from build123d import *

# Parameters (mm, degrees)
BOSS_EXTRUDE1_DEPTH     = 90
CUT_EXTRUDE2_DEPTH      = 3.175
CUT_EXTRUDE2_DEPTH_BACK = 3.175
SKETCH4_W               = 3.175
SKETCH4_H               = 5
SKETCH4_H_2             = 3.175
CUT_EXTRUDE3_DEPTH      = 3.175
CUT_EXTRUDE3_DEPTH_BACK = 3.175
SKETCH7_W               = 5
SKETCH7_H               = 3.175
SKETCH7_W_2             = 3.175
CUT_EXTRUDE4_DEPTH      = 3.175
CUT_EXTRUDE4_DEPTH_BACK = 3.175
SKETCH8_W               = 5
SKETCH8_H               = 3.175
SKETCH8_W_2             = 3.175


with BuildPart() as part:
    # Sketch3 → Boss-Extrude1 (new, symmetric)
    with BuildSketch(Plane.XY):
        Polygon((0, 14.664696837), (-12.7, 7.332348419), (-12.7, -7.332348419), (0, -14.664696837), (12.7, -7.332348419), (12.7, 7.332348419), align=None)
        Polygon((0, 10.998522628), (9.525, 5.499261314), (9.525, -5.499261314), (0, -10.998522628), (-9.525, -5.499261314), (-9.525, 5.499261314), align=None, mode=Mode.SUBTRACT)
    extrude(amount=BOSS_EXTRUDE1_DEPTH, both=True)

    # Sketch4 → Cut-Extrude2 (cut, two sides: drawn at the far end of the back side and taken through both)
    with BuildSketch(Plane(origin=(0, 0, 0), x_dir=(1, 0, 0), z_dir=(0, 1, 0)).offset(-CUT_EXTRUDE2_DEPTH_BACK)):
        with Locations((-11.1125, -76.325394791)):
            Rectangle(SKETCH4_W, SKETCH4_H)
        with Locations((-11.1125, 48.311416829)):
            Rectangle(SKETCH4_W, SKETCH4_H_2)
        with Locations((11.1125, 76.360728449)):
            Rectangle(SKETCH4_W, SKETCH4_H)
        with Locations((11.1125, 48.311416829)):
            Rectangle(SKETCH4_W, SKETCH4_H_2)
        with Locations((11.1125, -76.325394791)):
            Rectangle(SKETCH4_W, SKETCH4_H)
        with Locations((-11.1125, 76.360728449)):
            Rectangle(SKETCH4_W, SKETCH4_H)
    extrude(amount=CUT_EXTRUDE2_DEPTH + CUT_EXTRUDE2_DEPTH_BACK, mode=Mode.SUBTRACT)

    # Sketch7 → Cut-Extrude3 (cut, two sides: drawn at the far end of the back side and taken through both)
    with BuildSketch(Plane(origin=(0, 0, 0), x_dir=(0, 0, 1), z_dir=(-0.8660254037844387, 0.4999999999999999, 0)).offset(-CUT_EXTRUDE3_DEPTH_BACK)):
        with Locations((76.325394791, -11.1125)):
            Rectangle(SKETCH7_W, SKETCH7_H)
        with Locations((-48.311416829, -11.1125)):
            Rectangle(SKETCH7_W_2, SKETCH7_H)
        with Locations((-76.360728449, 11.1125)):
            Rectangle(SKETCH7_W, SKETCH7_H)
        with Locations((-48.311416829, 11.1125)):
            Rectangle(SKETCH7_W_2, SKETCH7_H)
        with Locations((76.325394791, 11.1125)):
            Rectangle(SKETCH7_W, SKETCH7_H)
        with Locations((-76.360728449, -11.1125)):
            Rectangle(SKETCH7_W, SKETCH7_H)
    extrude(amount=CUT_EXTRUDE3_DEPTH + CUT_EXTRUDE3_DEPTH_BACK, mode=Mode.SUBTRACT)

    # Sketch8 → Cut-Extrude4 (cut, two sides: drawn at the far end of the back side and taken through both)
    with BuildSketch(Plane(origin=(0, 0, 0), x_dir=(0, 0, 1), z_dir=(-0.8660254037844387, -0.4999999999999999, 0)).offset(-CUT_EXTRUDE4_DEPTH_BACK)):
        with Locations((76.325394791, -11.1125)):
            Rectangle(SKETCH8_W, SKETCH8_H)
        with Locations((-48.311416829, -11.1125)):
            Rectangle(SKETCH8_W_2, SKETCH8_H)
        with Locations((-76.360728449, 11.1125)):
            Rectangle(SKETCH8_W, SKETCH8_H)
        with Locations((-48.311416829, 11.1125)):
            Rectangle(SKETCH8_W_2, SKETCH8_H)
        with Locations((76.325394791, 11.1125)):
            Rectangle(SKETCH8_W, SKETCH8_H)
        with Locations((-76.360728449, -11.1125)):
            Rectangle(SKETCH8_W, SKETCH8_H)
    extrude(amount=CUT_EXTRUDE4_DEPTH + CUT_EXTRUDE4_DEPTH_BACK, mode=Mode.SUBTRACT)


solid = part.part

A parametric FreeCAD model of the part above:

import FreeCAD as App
import Part
import Sketcher
from FreeCAD import Vector
Q = App.Units.Quantity


def add_polygon(sketch, points):
    """Adds a closed chain of lines whose ends are joined by coincident constraints."""
    first, n = sketch.GeometryCount, len(points)
    for a, b in zip(points, points[1:] + points[:1]):
        sketch.addGeometry(Part.LineSegment(App.Vector(*a, 0), App.Vector(*b, 0)), False)
    for i in range(n):
        sketch.addConstraint(Sketcher.Constraint("Coincident", first + i, 2, first + (i + 1) % n, 1))

doc = App.newDocument("Part")
params = doc.addObject("Spreadsheet::Sheet", "Params")
for row, (alias, value) in enumerate([
    ("pad1_length", "180 mm"),
    ("sketch2_height", "5 mm"),
    ("pocket1_length", "3.175 mm"),
    ("pocket1_length2", "3.175 mm"),
    ("sketch3_width", "5 mm"),
    ("pocket2_length", "3.175 mm"),
    ("pocket2_length2", "3.175 mm"),
    ("sketch4_width", "5 mm"),
    ("pocket3_length", "3.175 mm"),
    ("pocket3_length2", "3.175 mm"),
], start=1):
    params.set(f"A{row}", alias)
    params.set(f"B{row}", "=" + value)
    params.setAlias(f"B{row}", alias)

body = doc.addObject("PartDesign::Body", "Body")

# Sketch on XY plane
sketch1 = body.newObject("Sketcher::SketchObject", "Sketch")
sketch1.AttachmentSupport = (doc.getObject("XY_Plane"), [""])
sketch1.MapMode = "FlatFace"
add_polygon(sketch1, [(0, 15), (-13, 7), (-13, -7), (0, -15), (13, -7), (13, 7)])  # lines 0-5
add_polygon(sketch1, [(-10, 5), (0, 11), (10, 5), (10, -5), (0, -11), (-10, -5)])  # lines 6-11
sketch1.addConstraint([
    Sketcher.Constraint("Vertical", 1),
    Sketcher.Constraint("Vertical", 4),
    Sketcher.Constraint("Vertical", 8),
    Sketcher.Constraint("Vertical", 11),
    Sketcher.Constraint("Symmetric", 0, 2, 3, 2, -1, 1),
    Sketcher.Constraint("Symmetric", 2, 2, 5, 2, -1, 1),
    Sketcher.Constraint("Symmetric", 6, 2, 9, 2, -1, 1),
    Sketcher.Constraint("Symmetric", 7, 2, 10, 2, -1, 1),
    Sketcher.Constraint("PointOnObject", 2, 2, -2),
    Sketcher.Constraint("PointOnObject", 6, 2, -2),
    Sketcher.Constraint("Parallel", 2, 5),
    Sketcher.Constraint("Parallel", 3, 6),
    Sketcher.Constraint("Parallel", 5, 7),
    Sketcher.Constraint("Parallel", 6, 9),
    Sketcher.Constraint("Horizontal", 1, 2, 3, 2),
    Sketcher.Constraint("Angle", 0, Q("-150 deg")),
    Sketcher.Constraint("DistanceX", 0, 2, -1, 1, 12.7),
    Sketcher.Constraint("DistanceX", -1, 1, 7, 2, 9.525),
    Sketcher.Constraint("DistanceY", 1, 2, 1, 1, 14.664697),
    Sketcher.Constraint("DistanceY", 8, 2, 8, 1, 10.998523),
])
pad1 = body.newObject("PartDesign::Pad", "Pad")
pad1.Profile = sketch1
pad1.setExpression("Length", "Params.pad1_length")
pad1.Midplane = True

# Sketch on XZ plane
sketch2 = body.newObject("Sketcher::SketchObject", "Sketch001")
sketch2.AttachmentSupport = (doc.getObject("XZ_Plane"), [""])
sketch2.MapMode = "FlatFace"
add_polygon(sketch2, [(-12.7, 73.8), (-12.7, 78.8), (-9.5, 78.8), (-9.5, 73.8)])  # lines 0-3
add_polygon(sketch2, [(-12.7, -49.9), (-12.7, -46.7), (-9.5, -46.7), (-9.5, -49.9)])  # lines 4-7
add_polygon(sketch2, [(9.5, -78.9), (9.5, -73.9), (12.7, -73.9), (12.7, -78.9)])  # lines 8-11
add_polygon(sketch2, [(9.5, -49.9), (9.5, -46.7), (12.7, -46.7), (12.7, -49.9)])  # lines 12-15
add_polygon(sketch2, [(9.5, 73.8), (9.5, 78.8), (12.7, 78.8), (12.7, 73.8)])  # lines 16-19
add_polygon(sketch2, [(-12.7, -78.9), (-12.7, -73.9), (-9.5, -73.9), (-9.5, -78.9)])  # lines 20-23
sketch2.addConstraint([
    Sketcher.Constraint("Vertical", 0),
    Sketcher.Constraint("Horizontal", 1),
    Sketcher.Constraint("Vertical", 2),
    Sketcher.Constraint("Horizontal", 3),
    Sketcher.Constraint("Vertical", 4),
    Sketcher.Constraint("Horizontal", 5),
    Sketcher.Constraint("Vertical", 6),
    Sketcher.Constraint("Horizontal", 7),
    Sketcher.Constraint("Vertical", 8),
    Sketcher.Constraint("Horizontal", 9),
    Sketcher.Constraint("Vertical", 10),
    Sketcher.Constraint("Horizontal", 11),
    Sketcher.Constraint("Vertical", 12),
    Sketcher.Constraint("Horizontal", 13),
    Sketcher.Constraint("Vertical", 14),
    Sketcher.Constraint("Horizontal", 15),
    Sketcher.Constraint("Vertical", 16),
    Sketcher.Constraint("Horizontal", 17),
    Sketcher.Constraint("Vertical", 18),
    Sketcher.Constraint("Horizontal", 19),
    Sketcher.Constraint("Vertical", 20),
    Sketcher.Constraint("Horizontal", 21),
    Sketcher.Constraint("Vertical", 22),
    Sketcher.Constraint("Horizontal", 23),
    Sketcher.Constraint("Symmetric", 5, 2, 12, 2, -2),
    Sketcher.Constraint("Symmetric", 7, 2, 14, 2, -2),
    Sketcher.Constraint("Symmetric", 1, 2, 16, 2, -2),
    Sketcher.Constraint("Symmetric", 3, 2, 18, 2, -2),
    Sketcher.Constraint("Symmetric", 9, 2, 20, 2, -2),
    Sketcher.Constraint("Symmetric", 11, 2, 22, 2, -2),
    Sketcher.Constraint("Vertical", 3, 2, 4, 2),
    Sketcher.Constraint("Vertical", 2, 2, 5, 2),
    Sketcher.Constraint("Vertical", 11, 2, 12, 2),
    Sketcher.Constraint("Vertical", 10, 2, 13, 2),
    Sketcher.Constraint("Equal", 23, 4),
    Sketcher.Constraint("Equal", 2, 8),
    Sketcher.Constraint("DistanceY", 0, 1, 0, 2, 5.0),
    Sketcher.Constraint("DistanceX", 0, 2, -1, 1, 12.7),
    Sketcher.Constraint("DistanceX", 1, 1, 1, 2, 3.175),
    Sketcher.Constraint("DistanceY", 8, 2, -1, 1, 73.860728),
    Sketcher.Constraint("DistanceY", 4, 2, 3, 2, 120.549312),
    Sketcher.Constraint("DistanceY", 8, 2, 6, 2, 23.961812),
])
sketch2.setExpression("Constraints[60]", "Params.sketch2_height")
pocket1 = body.newObject("PartDesign::Pocket", "Pocket")
pocket1.Profile = sketch2
pocket1.Type = "TwoLengths"
pocket1.setExpression("Length", "Params.pocket1_length")
pocket1.setExpression("Length2", "Params.pocket1_length2")

# Sketch on an angled plane
sketch3 = body.newObject("Sketcher::SketchObject", "Sketch002")
sketch3.Placement = App.Placement(Vector(0, 0, 0), App.Rotation(Vector(0, 0, 1), Vector(0.5, 0.866025404, 0), Vector(-0.866025404, 0.5, 0), "ZXY"))
add_polygon(sketch3, [(73.8, -9.5), (73.8, -12.7), (78.8, -12.7), (78.8, -9.5)])  # lines 0-3
add_polygon(sketch3, [(-49.9, -9.5), (-49.9, -12.7), (-46.7, -12.7), (-46.7, -9.5)])  # lines 4-7
add_polygon(sketch3, [(-78.9, 12.7), (-78.9, 9.5), (-73.9, 9.5), (-73.9, 12.7)])  # lines 8-11
add_polygon(sketch3, [(-49.9, 12.7), (-49.9, 9.5), (-46.7, 9.5), (-46.7, 12.7)])  # lines 12-15
add_polygon(sketch3, [(73.8, 12.7), (73.8, 9.5), (78.8, 9.5), (78.8, 12.7)])  # lines 16-19
add_polygon(sketch3, [(-78.9, -9.5), (-78.9, -12.7), (-73.9, -12.7), (-73.9, -9.5)])  # lines 20-23
sketch3.addConstraint([
    Sketcher.Constraint("Vertical", 0),
    Sketcher.Constraint("Horizontal", 1),
    Sketcher.Constraint("Vertical", 2),
    Sketcher.Constraint("Horizontal", 3),
    Sketcher.Constraint("Vertical", 4),
    Sketcher.Constraint("Horizontal", 5),
    Sketcher.Constraint("Vertical", 6),
    Sketcher.Constraint("Horizontal", 7),
    Sketcher.Constraint("Vertical", 8),
    Sketcher.Constraint("Horizontal", 9),
    Sketcher.Constraint("Vertical", 10),
    Sketcher.Constraint("Horizontal", 11),
    Sketcher.Constraint("Vertical", 12),
    Sketcher.Constraint("Horizontal", 13),
    Sketcher.Constraint("Vertical", 14),
    Sketcher.Constraint("Horizontal", 15),
    Sketcher.Constraint("Vertical", 16),
    Sketcher.Constraint("Horizontal", 17),
    Sketcher.Constraint("Vertical", 18),
    Sketcher.Constraint("Horizontal", 19),
    Sketcher.Constraint("Vertical", 20),
    Sketcher.Constraint("Horizontal", 21),
    Sketcher.Constraint("Vertical", 22),
    Sketcher.Constraint("Horizontal", 23),
    Sketcher.Constraint("Symmetric", 7, 2, 12, 2, -1),
    Sketcher.Constraint("Symmetric", 5, 2, 14, 2, -1),
    Sketcher.Constraint("Symmetric", 3, 2, 16, 2, -1),
    Sketcher.Constraint("Symmetric", 1, 2, 18, 2, -1),
    Sketcher.Constraint("Symmetric", 11, 2, 20, 2, -1),
    Sketcher.Constraint("Symmetric", 9, 2, 22, 2, -1),
    Sketcher.Constraint("Horizontal", 1, 2, 4, 2),
    Sketcher.Constraint("Horizontal", 3, 2, 6, 2),
    Sketcher.Constraint("Horizontal", 9, 2, 12, 2),
    Sketcher.Constraint("Horizontal", 11, 2, 14, 2),
    Sketcher.Constraint("Equal", 3, 9),
    Sketcher.Constraint("Equal", 15, 0),
    Sketcher.Constraint("DistanceX", 1, 1, 1, 2, 5.0),
    Sketcher.Constraint("DistanceY", 0, 2, -1, 1, 12.7),
    Sketcher.Constraint("DistanceX", 5, 1, 5, 2, 3.175),
    Sketcher.Constraint("DistanceX", 8, 2, -1, 1, 78.860728),
    Sketcher.Constraint("DistanceX", 4, 2, 0, 2, 123.724312),
    Sketcher.Constraint("DistanceX", 8, 2, 7, 2, 28.961812),
])
sketch3.setExpression("Constraints[60]", "Params.sketch3_width")
pocket2 = body.newObject("PartDesign::Pocket", "Pocket001")
pocket2.Profile = sketch3
pocket2.Type = "TwoLengths"
pocket2.setExpression("Length", "Params.pocket2_length")
pocket2.setExpression("Length2", "Params.pocket2_length2")
pocket2.Reversed = True

# Sketch on an angled plane
sketch4 = body.newObject("Sketcher::SketchObject", "Sketch003")
sketch4.Placement = App.Placement(Vector(0, 0, 0), App.Rotation(Vector(0, 0, 1), Vector(-0.5, 0.866025404, 0), Vector(-0.866025404, -0.5, 0), "ZXY"))
add_polygon(sketch4, [(73.8, -9.5), (73.8, -12.7), (78.8, -12.7), (78.8, -9.5)])  # lines 0-3
add_polygon(sketch4, [(-49.9, -9.5), (-49.9, -12.7), (-46.7, -12.7), (-46.7, -9.5)])  # lines 4-7
add_polygon(sketch4, [(-78.9, 12.7), (-78.9, 9.5), (-73.9, 9.5), (-73.9, 12.7)])  # lines 8-11
add_polygon(sketch4, [(-49.9, 12.7), (-49.9, 9.5), (-46.7, 9.5), (-46.7, 12.7)])  # lines 12-15
add_polygon(sketch4, [(73.8, 12.7), (73.8, 9.5), (78.8, 9.5), (78.8, 12.7)])  # lines 16-19
add_polygon(sketch4, [(-78.9, -9.5), (-78.9, -12.7), (-73.9, -12.7), (-73.9, -9.5)])  # lines 20-23
sketch4.addConstraint([
    Sketcher.Constraint("Vertical", 0),
    Sketcher.Constraint("Horizontal", 1),
    Sketcher.Constraint("Vertical", 2),
    Sketcher.Constraint("Horizontal", 3),
    Sketcher.Constraint("Vertical", 4),
    Sketcher.Constraint("Horizontal", 5),
    Sketcher.Constraint("Vertical", 6),
    Sketcher.Constraint("Horizontal", 7),
    Sketcher.Constraint("Vertical", 8),
    Sketcher.Constraint("Horizontal", 9),
    Sketcher.Constraint("Vertical", 10),
    Sketcher.Constraint("Horizontal", 11),
    Sketcher.Constraint("Vertical", 12),
    Sketcher.Constraint("Horizontal", 13),
    Sketcher.Constraint("Vertical", 14),
    Sketcher.Constraint("Horizontal", 15),
    Sketcher.Constraint("Vertical", 16),
    Sketcher.Constraint("Horizontal", 17),
    Sketcher.Constraint("Vertical", 18),
    Sketcher.Constraint("Horizontal", 19),
    Sketcher.Constraint("Vertical", 20),
    Sketcher.Constraint("Horizontal", 21),
    Sketcher.Constraint("Vertical", 22),
    Sketcher.Constraint("Horizontal", 23),
    Sketcher.Constraint("Symmetric", 7, 2, 12, 2, -1),
    Sketcher.Constraint("Symmetric", 5, 2, 14, 2, -1),
    Sketcher.Constraint("Symmetric", 3, 2, 16, 2, -1),
    Sketcher.Constraint("Symmetric", 1, 2, 18, 2, -1),
    Sketcher.Constraint("Symmetric", 11, 2, 20, 2, -1),
    Sketcher.Constraint("Symmetric", 9, 2, 22, 2, -1),
    Sketcher.Constraint("Horizontal", 1, 2, 4, 2),
    Sketcher.Constraint("Horizontal", 3, 2, 6, 2),
    Sketcher.Constraint("Horizontal", 9, 2, 12, 2),
    Sketcher.Constraint("Horizontal", 11, 2, 14, 2),
    Sketcher.Constraint("Equal", 3, 9),
    Sketcher.Constraint("Equal", 15, 0),
    Sketcher.Constraint("DistanceX", 1, 1, 1, 2, 5.0),
    Sketcher.Constraint("DistanceY", 0, 2, -1, 1, 12.7),
    Sketcher.Constraint("DistanceX", 5, 1, 5, 2, 3.175),
    Sketcher.Constraint("DistanceX", 8, 2, -1, 1, 78.860728),
    Sketcher.Constraint("DistanceX", 4, 2, 0, 2, 123.724312),
    Sketcher.Constraint("DistanceX", 8, 2, 7, 2, 28.961812),
])
sketch4.setExpression("Constraints[60]", "Params.sketch4_width")
pocket3 = body.newObject("PartDesign::Pocket", "Pocket002")
pocket3.Profile = sketch4
pocket3.Type = "TwoLengths"
pocket3.setExpression("Length", "Params.pocket3_length")
pocket3.setExpression("Length2", "Params.pocket3_length2")
pocket3.Reversed = True

doc.recompute()
